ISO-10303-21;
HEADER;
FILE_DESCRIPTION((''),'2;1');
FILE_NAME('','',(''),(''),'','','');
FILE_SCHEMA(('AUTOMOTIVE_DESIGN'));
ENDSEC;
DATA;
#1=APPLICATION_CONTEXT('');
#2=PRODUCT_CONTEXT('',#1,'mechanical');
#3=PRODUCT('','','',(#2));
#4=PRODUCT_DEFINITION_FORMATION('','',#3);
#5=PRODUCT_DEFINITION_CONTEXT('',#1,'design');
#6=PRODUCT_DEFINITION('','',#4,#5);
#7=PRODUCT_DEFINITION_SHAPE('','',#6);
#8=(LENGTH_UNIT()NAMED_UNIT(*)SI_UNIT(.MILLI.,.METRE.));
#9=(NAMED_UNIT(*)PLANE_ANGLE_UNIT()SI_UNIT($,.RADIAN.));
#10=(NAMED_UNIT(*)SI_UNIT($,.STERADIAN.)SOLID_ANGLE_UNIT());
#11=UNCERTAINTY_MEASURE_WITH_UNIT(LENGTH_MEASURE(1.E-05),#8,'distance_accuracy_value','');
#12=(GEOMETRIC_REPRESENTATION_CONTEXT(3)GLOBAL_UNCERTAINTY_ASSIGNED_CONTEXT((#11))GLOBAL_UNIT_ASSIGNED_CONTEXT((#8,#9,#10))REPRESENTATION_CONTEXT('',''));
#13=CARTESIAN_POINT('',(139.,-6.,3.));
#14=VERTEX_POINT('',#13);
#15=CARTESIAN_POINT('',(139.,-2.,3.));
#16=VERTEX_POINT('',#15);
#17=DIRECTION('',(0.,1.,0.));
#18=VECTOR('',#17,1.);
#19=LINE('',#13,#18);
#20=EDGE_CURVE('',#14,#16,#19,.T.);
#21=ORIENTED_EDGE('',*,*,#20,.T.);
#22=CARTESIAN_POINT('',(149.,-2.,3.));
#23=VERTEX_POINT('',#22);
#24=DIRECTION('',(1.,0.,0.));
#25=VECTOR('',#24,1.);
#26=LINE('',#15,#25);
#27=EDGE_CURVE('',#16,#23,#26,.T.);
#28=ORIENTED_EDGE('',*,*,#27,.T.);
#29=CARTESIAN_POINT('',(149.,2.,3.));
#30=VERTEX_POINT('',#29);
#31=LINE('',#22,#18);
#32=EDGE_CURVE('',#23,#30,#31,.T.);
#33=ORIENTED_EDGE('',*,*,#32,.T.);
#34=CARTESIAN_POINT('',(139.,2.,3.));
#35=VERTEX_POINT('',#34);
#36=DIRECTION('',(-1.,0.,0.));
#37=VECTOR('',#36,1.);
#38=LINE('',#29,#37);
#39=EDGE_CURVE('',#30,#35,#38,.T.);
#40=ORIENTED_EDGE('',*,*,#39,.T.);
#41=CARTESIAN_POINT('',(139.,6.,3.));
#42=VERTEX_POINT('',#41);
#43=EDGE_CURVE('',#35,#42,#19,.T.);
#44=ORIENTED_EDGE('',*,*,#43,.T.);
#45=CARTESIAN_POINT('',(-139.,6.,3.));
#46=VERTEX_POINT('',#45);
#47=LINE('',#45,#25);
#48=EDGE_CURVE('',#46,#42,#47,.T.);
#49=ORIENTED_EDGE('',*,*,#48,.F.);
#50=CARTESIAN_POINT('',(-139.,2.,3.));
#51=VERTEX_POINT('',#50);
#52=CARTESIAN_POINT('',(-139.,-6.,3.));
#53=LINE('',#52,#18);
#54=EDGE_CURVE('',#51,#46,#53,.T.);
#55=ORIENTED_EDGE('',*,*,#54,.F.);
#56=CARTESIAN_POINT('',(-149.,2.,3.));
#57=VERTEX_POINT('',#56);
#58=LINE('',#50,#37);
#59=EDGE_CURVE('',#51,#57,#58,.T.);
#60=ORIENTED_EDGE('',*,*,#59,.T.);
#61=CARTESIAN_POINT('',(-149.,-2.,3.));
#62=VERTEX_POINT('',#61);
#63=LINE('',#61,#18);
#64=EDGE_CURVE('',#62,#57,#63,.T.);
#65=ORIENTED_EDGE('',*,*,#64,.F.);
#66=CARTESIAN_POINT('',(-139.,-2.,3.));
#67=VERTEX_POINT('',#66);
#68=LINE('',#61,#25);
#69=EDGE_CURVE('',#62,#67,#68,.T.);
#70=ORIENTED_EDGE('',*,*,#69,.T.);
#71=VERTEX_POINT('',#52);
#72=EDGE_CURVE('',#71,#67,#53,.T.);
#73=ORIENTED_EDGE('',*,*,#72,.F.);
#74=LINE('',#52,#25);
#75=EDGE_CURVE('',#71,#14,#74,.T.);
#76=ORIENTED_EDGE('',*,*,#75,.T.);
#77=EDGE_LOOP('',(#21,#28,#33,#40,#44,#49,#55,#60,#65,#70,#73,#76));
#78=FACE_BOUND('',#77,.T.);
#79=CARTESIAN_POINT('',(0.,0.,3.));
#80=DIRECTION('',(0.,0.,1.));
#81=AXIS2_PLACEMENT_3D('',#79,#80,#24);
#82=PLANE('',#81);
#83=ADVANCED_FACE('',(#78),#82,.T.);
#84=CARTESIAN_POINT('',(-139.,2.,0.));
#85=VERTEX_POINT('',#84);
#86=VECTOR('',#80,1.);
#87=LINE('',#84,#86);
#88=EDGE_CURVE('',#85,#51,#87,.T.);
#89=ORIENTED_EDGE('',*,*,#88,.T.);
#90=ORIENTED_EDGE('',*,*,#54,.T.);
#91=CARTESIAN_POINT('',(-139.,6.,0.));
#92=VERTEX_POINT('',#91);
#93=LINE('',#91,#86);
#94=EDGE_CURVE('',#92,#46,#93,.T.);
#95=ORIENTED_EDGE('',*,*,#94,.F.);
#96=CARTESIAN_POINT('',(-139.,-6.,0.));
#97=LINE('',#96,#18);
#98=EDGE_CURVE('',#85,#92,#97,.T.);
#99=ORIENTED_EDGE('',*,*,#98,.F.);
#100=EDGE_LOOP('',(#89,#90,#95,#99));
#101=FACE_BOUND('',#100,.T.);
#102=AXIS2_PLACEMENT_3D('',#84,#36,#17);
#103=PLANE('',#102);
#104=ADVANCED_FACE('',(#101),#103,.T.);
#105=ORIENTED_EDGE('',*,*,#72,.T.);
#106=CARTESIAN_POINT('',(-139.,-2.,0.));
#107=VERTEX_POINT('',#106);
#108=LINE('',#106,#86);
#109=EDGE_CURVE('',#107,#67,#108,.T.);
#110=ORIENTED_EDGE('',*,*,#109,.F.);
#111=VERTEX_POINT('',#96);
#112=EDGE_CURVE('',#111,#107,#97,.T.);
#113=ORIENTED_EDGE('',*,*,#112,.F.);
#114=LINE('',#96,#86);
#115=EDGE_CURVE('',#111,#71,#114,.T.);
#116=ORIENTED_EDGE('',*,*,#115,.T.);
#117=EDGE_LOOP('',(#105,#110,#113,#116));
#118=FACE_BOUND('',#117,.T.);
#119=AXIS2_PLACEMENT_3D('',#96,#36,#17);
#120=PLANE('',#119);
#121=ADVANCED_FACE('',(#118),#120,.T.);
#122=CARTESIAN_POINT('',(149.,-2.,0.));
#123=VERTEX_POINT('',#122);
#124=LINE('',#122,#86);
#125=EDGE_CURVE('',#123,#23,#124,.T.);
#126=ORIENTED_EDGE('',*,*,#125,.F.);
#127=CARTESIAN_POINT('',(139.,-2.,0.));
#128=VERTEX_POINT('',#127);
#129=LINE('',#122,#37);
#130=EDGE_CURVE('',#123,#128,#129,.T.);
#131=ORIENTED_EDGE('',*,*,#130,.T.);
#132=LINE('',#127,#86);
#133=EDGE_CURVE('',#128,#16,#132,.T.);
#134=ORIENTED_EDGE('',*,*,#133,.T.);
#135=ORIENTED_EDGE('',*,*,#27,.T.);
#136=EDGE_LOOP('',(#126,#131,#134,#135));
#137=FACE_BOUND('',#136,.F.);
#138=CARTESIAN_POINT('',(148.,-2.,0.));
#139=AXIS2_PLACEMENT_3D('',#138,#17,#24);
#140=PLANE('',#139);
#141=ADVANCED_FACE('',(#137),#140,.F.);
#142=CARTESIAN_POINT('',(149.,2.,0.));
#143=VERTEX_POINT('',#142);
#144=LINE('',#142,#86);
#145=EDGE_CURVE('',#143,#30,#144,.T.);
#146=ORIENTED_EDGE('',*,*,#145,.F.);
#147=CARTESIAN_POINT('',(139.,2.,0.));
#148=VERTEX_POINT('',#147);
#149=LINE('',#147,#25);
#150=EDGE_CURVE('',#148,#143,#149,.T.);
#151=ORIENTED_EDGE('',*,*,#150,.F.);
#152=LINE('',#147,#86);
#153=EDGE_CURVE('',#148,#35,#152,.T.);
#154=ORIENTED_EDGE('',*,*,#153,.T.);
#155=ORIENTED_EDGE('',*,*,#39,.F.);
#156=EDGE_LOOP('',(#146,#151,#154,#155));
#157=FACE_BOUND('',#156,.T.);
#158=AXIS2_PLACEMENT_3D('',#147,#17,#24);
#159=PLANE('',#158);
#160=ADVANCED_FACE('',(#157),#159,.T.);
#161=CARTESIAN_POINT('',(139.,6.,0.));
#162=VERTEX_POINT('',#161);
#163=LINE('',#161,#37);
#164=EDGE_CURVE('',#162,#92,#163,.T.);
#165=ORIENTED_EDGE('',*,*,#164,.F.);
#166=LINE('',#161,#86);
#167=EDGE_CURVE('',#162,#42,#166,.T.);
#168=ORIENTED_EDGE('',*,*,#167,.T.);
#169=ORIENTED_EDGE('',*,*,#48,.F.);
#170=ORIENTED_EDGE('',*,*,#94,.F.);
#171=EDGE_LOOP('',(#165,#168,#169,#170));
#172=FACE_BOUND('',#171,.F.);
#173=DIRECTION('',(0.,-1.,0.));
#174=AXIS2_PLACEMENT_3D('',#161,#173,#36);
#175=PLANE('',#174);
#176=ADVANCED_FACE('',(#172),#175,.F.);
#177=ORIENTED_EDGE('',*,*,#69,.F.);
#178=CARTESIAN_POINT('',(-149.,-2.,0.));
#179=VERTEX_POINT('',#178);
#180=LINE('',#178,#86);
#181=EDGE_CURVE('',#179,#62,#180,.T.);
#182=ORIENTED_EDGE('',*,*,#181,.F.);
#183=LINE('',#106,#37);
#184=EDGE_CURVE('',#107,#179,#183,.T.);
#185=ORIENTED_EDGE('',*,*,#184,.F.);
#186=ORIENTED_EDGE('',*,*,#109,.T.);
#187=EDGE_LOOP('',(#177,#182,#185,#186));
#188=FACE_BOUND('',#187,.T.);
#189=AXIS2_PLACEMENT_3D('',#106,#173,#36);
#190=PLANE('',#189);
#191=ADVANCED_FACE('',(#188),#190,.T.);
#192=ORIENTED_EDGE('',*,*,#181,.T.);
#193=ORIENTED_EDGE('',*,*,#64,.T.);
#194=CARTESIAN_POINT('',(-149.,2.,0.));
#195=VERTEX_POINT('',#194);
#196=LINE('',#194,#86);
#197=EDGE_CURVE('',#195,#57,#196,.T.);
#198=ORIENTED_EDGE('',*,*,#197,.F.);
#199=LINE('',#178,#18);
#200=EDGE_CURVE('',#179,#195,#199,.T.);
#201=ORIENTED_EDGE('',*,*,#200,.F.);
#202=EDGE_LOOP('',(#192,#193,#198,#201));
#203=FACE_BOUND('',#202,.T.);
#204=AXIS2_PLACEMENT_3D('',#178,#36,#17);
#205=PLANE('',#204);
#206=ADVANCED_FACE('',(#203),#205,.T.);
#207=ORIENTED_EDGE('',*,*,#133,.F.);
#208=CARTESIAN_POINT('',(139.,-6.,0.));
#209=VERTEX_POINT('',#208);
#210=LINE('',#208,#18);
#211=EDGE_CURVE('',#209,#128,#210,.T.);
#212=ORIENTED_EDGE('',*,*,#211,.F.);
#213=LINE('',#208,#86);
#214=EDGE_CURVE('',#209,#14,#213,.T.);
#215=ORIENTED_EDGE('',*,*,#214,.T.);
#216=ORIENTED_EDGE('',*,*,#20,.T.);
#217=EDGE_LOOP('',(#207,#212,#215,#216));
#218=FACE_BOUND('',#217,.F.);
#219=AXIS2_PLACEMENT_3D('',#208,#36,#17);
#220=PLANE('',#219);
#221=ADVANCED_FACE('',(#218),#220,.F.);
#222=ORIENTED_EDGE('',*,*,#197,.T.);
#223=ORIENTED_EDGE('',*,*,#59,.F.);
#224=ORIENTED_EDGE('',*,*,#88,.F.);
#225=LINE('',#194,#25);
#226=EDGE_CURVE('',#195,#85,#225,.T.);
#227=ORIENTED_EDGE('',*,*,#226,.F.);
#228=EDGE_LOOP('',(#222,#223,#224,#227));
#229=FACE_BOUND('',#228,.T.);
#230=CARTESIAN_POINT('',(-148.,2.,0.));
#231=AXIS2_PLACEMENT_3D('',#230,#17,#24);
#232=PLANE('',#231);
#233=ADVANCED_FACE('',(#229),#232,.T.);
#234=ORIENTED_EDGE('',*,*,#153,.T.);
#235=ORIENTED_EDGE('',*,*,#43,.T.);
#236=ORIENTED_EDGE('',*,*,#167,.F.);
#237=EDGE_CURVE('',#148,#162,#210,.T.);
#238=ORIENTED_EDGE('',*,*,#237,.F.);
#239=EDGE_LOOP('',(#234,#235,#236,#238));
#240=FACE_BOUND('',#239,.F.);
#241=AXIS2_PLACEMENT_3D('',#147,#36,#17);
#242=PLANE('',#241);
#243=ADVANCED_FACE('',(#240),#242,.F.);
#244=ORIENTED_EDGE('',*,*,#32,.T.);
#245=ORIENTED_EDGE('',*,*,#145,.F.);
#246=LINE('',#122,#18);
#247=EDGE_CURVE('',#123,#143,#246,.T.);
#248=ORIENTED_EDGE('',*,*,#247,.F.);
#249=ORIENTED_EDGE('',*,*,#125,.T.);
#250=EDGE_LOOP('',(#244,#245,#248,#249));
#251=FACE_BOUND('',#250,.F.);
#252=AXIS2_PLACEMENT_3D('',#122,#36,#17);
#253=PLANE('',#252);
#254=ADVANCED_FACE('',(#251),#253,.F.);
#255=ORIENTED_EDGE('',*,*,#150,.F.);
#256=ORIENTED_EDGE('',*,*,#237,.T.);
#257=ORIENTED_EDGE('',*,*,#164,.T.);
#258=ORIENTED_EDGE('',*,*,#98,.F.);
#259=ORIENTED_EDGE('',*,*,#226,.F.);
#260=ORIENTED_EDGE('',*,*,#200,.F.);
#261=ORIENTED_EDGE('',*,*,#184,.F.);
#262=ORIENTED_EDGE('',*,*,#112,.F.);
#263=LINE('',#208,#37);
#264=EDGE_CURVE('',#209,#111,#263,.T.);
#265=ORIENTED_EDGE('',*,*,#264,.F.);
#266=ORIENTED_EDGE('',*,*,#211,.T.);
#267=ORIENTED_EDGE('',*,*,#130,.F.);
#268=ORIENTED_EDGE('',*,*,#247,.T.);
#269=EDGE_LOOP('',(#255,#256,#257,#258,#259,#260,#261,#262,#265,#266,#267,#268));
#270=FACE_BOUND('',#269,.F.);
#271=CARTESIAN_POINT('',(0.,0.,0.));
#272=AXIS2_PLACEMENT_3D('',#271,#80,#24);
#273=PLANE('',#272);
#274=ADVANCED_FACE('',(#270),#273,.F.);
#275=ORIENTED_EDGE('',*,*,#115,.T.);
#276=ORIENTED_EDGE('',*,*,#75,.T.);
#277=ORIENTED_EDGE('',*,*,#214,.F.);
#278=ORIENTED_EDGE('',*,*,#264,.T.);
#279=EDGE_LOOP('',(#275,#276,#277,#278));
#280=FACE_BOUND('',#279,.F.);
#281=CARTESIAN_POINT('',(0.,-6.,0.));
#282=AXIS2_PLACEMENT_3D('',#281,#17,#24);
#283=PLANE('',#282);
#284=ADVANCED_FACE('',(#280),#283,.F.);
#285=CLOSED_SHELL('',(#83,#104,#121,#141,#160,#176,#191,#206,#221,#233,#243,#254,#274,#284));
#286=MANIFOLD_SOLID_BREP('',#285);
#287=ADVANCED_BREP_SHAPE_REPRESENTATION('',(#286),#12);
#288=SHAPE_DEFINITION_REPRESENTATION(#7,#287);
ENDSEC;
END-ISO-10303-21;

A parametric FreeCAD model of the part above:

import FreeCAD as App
import Part
import Sketcher

V = App.Vector
Q = App.Units.Quantity

doc = App.newDocument("Part")
body = doc.addObject("PartDesign::Body", "Body")

# Sketch on XY plane
sketch1 = body.newObject("Sketcher::SketchObject", "Sketch")
sketch1.AttachmentSupport = (doc.getObject("XY_Plane"), [""])
sketch1.MapMode = "FlatFace"
sketch1.addGeometry(Part.LineSegment(V(139, 6, 0), V(-139, 6, 0)), False)
sketch1.addGeometry(Part.LineSegment(V(-139, 6, 0), V(-139, 2, 0)), False)
sketch1.addGeometry(Part.LineSegment(V(-139, 2, 0), V(-149, 2, 0)), False)
sketch1.addGeometry(Part.LineSegment(V(-149, 2, 0), V(-149, -2, 0)), False)
sketch1.addGeometry(Part.LineSegment(V(-149, -2, 0), V(-139, -2, 0)), False)
sketch1.addGeometry(Part.LineSegment(V(-139, -2, 0), V(-139, -6, 0)), False)
sketch1.addGeometry(Part.LineSegment(V(-139, -6, 0), V(139, -6, 0)), False)
sketch1.addGeometry(Part.LineSegment(V(139, -6, 0), V(139, -2, 0)), False)
sketch1.addGeometry(Part.LineSegment(V(139, -2, 0), V(149, -2, 0)), False)
sketch1.addGeometry(Part.LineSegment(V(149, -2, 0), V(149, 2, 0)), False)
sketch1.addGeometry(Part.LineSegment(V(149, 2, 0), V(139, 2, 0)), False)
sketch1.addGeometry(Part.LineSegment(V(139, 2, 0), V(139, 6, 0)), False)
sketch1.addConstraint(Sketcher.Constraint("Coincident", 0, 2, 1, 1))
sketch1.addConstraint(Sketcher.Constraint("Coincident", 1, 2, 2, 1))
sketch1.addConstraint(Sketcher.Constraint("Coincident", 2, 2, 3, 1))
sketch1.addConstraint(Sketcher.Constraint("Coincident", 3, 2, 4, 1))
sketch1.addConstraint(Sketcher.Constraint("Coincident", 4, 2, 5, 1))
sketch1.addConstraint(Sketcher.Constraint("Coincident", 5, 2, 6, 1))
sketch1.addConstraint(Sketcher.Constraint("Coincident", 6, 2, 7, 1))
sketch1.addConstraint(Sketcher.Constraint("Coincident", 7, 2, 8, 1))
sketch1.addConstraint(Sketcher.Constraint("Coincident", 8, 2, 9, 1))
sketch1.addConstraint(Sketcher.Constraint("Coincident", 9, 2, 10, 1))
sketch1.addConstraint(Sketcher.Constraint("Coincident", 10, 2, 11, 1))
sketch1.addConstraint(Sketcher.Constraint("Coincident", 11, 2, 0, 1))
sketch1.addConstraint(Sketcher.Constraint("Horizontal", 0))
sketch1.addConstraint(Sketcher.Constraint("Vertical", 1))
sketch1.addConstraint(Sketcher.Constraint("Horizontal", 2))
sketch1.addConstraint(Sketcher.Constraint("Vertical", 3))
sketch1.addConstraint(Sketcher.Constraint("Horizontal", 4))
sketch1.addConstraint(Sketcher.Constraint("Vertical", 5))
sketch1.addConstraint(Sketcher.Constraint("Horizontal", 6))
sketch1.addConstraint(Sketcher.Constraint("Vertical", 7))
sketch1.addConstraint(Sketcher.Constraint("Horizontal", 8))
sketch1.addConstraint(Sketcher.Constraint("Vertical", 9))
sketch1.addConstraint(Sketcher.Constraint("Horizontal", 10))
sketch1.addConstraint(Sketcher.Constraint("Vertical", 11))
sketch1.addConstraint(Sketcher.Constraint("Symmetric", 0, 2, 6, 2, -1, 1))
sketch1.addConstraint(Sketcher.Constraint("Symmetric", 2, 2, 8, 2, -1, 1))
sketch1.addConstraint(Sketcher.Constraint("Symmetric", 4, 2, 10, 2, -1, 1))
sketch1.addConstraint(Sketcher.Constraint("Symmetric", 4, 2, 7, 2, -2))
sketch1.addConstraint(Sketcher.Constraint("Equal", 1, 3))
sketch1.addConstraint(Sketcher.Constraint("DistanceX", 2, 2, 2, 1, Q("10 mm")))
sketch1.addConstraint(Sketcher.Constraint("DistanceY", 1, 2, 1, 1, Q("4 mm")))
sketch1.addConstraint(Sketcher.Constraint("DistanceX", 0, 2, -1, 1, Q("139 mm")))
pad1 = body.newObject("PartDesign::Pad", "Pad")
pad1.Profile = sketch1
pad1.Length = 3

doc.recompute()
